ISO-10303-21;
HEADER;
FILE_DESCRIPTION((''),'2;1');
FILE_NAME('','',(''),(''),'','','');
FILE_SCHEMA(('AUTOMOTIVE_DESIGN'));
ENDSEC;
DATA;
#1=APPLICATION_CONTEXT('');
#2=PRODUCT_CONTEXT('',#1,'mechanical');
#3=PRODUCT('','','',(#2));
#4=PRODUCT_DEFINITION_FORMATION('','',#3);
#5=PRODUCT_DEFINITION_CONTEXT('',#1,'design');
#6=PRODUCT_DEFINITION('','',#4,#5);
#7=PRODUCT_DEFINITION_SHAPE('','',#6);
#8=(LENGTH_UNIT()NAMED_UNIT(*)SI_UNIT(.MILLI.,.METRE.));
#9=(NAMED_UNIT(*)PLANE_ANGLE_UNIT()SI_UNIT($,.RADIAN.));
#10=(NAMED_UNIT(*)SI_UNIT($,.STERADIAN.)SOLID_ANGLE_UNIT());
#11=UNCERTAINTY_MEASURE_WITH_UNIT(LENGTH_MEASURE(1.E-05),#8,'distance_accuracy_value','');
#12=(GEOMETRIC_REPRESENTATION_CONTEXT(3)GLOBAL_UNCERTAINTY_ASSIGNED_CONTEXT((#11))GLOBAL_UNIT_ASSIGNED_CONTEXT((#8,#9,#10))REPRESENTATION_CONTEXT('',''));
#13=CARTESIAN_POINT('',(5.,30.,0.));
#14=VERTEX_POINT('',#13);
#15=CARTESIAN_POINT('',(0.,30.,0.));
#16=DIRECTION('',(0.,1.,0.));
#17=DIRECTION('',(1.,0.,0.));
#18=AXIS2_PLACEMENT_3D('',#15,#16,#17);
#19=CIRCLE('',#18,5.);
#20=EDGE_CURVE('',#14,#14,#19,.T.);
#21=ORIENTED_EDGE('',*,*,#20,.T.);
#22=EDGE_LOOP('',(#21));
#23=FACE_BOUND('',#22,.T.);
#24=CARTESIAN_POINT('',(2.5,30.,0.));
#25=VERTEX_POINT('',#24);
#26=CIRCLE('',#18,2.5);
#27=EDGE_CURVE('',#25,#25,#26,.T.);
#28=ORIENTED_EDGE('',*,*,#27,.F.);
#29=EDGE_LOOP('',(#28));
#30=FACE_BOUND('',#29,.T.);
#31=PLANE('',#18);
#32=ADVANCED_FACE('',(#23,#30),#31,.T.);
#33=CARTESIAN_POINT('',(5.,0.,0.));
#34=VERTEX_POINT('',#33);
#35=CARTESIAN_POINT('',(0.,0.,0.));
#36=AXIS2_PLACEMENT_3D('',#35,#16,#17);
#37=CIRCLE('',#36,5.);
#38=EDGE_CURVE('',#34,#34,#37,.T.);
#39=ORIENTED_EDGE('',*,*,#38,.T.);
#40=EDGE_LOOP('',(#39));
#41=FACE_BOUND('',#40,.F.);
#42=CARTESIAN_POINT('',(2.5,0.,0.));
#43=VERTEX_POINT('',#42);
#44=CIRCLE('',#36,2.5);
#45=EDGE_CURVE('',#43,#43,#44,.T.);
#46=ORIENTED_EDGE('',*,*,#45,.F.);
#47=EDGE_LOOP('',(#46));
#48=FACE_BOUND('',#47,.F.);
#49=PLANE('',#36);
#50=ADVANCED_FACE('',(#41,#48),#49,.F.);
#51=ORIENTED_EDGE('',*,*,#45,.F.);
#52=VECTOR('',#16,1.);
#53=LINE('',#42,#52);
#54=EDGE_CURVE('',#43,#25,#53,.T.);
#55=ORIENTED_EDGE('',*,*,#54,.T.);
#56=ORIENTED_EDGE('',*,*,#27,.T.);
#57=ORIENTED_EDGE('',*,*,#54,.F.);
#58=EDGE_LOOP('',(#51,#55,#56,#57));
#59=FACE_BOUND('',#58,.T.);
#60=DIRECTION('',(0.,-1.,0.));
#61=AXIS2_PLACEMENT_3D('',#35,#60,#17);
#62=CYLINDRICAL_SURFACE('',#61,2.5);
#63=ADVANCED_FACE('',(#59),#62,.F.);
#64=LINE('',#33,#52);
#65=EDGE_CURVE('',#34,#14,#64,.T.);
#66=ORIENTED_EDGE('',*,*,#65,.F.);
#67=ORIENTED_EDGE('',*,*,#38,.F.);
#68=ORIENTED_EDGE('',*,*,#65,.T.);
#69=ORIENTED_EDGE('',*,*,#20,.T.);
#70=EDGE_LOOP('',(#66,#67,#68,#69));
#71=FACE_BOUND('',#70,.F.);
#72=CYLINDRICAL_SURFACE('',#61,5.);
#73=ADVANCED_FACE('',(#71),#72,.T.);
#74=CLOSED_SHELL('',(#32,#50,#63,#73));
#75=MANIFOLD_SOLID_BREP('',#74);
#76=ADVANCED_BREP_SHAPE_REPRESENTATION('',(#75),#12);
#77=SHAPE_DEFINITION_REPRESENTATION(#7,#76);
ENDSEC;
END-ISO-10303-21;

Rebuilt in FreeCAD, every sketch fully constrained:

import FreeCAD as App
import Part
import Sketcher

V = App.Vector
Q = App.Units.Quantity

doc = App.newDocument("Part")
body = doc.addObject("PartDesign::Body", "Body")

sketch1 = doc.addObject("Sketcher::SketchObject", "Sketch")
body.addObject(sketch1)
sketch1.AttachmentSupport = (doc.XZ_Plane, [""])
sketch1.MapMode = "FlatFace"
sketch1.addGeometry([
    Part.Circle(V(0, 0, 0), V(0, 0, 1), 5),
    Part.Circle(V(0, 0, 0), V(0, 0, 1), 2.5),
], False)
sketch1.addConstraint([
    Sketcher.Constraint("Coincident", 0, 3, -1, 1),
    Sketcher.Constraint("Coincident", 1, 3, -1, 1),
    Sketcher.Constraint("Diameter", 0, Q("10 mm")),
    Sketcher.Constraint("Diameter", 1, Q("5 mm")),
])
pad1 = doc.addObject("PartDesign::Pad", "Pad")
body.addObject(pad1)
pad1.Profile = sketch1
pad1.Length = 30
pad1.Reversed = True

doc.recompute()
